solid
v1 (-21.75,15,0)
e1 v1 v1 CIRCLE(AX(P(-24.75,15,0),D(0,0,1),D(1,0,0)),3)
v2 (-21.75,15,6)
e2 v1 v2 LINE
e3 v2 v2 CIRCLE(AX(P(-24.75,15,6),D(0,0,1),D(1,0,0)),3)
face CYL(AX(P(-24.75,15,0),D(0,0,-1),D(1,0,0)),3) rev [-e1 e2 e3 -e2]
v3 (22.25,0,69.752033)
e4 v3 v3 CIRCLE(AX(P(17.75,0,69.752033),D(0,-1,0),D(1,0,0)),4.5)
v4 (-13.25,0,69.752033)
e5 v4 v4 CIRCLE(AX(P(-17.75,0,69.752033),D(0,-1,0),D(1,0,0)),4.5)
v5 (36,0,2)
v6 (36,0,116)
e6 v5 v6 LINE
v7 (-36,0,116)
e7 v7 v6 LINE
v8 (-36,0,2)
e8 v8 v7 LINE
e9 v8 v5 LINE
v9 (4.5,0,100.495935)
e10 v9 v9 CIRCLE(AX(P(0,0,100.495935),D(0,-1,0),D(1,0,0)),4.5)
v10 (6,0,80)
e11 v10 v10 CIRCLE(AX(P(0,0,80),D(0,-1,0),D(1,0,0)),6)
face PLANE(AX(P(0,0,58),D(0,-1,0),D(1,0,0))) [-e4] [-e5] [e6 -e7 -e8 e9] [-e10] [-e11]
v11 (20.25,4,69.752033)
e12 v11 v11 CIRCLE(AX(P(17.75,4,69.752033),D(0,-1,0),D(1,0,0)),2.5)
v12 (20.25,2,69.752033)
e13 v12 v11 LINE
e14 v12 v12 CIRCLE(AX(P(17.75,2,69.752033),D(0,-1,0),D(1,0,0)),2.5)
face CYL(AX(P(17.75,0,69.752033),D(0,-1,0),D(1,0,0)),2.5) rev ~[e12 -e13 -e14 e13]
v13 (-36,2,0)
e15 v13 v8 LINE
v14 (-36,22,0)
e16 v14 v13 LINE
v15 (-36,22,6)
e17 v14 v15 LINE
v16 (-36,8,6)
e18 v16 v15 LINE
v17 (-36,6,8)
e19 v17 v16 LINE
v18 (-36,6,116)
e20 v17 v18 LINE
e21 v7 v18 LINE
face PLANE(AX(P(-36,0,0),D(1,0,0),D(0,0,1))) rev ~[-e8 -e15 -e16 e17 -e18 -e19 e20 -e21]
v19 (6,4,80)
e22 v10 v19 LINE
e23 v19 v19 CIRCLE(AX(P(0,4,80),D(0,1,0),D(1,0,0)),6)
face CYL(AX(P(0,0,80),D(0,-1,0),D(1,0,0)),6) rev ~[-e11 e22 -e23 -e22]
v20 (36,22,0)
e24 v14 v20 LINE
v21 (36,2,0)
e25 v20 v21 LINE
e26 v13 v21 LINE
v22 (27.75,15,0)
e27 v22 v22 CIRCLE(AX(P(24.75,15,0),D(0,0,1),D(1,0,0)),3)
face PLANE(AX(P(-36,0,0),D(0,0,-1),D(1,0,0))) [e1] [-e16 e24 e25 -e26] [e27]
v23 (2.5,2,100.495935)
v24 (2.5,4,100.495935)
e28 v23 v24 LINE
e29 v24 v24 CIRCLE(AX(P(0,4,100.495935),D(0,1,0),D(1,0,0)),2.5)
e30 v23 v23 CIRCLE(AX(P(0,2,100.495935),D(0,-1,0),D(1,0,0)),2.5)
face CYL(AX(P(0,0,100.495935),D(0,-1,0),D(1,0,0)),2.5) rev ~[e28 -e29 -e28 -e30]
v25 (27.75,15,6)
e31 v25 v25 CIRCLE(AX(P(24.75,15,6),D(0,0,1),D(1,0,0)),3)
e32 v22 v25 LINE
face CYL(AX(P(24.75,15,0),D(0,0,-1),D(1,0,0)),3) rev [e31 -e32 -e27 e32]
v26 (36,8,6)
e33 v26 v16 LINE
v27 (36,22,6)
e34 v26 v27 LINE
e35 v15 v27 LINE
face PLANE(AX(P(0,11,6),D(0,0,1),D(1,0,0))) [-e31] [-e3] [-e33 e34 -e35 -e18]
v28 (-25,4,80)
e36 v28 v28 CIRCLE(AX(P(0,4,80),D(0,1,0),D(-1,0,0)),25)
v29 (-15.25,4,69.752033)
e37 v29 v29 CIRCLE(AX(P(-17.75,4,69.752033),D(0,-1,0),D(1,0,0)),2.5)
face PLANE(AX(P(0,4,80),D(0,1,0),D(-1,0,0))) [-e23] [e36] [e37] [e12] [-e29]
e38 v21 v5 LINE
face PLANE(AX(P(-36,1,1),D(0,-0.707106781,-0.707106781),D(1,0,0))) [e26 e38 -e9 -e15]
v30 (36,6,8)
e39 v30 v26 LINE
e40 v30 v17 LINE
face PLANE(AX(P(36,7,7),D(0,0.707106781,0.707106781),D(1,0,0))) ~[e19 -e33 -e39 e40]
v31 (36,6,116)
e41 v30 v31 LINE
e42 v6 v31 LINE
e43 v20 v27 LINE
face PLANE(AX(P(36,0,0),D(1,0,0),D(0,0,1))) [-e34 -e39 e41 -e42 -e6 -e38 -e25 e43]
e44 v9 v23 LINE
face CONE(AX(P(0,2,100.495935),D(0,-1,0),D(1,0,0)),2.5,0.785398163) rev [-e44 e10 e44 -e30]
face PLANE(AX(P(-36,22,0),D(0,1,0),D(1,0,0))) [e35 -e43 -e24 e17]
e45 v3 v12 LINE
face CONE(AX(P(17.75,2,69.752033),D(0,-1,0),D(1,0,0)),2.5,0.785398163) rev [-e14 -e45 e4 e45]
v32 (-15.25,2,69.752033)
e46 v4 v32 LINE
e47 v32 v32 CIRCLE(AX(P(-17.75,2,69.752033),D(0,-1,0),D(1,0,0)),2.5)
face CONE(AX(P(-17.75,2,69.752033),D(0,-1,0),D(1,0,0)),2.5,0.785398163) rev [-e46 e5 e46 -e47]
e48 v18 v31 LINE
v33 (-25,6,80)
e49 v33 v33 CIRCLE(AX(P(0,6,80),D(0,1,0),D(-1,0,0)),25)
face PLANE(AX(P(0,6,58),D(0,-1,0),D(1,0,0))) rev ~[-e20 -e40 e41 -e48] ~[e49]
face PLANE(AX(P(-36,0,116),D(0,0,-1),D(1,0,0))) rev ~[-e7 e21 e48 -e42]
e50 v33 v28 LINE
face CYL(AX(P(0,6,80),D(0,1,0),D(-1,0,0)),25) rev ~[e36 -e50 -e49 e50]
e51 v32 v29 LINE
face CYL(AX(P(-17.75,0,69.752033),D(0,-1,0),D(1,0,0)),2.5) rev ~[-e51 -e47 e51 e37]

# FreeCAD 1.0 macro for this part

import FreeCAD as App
import Part
import Sketcher
from FreeCAD import Vector
Q = App.Units.Quantity


def edges_at(feature, points):
    """Names of the edges that pass closest to the given points."""
    edges = feature.Shape.Edges
    near = lambda p: min(range(len(edges)), key=lambda i: edges[i].distToShape(Part.Vertex(*p))[0])
    return sorted({f"Edge{near(p) + 1}" for p in points})


def add_polygon(sketch, points):
    """Adds a closed chain of lines whose ends are joined by coincident constraints."""
    first, n = sketch.GeometryCount, len(points)
    for a, b in zip(points, points[1:] + points[:1]):
        sketch.addGeometry(Part.LineSegment(App.Vector(*a, 0), App.Vector(*b, 0)), False)
    for i in range(n):
        sketch.addConstraint(Sketcher.Constraint("Coincident", first + i, 2, first + (i + 1) % n, 1))

doc = App.newDocument("Part")
body = doc.addObject("PartDesign::Body", "Body")

sketch1 = body.newObject("Sketcher::SketchObject", "Sketch")
sketch1.AttachmentSupport = (doc.getObject("XZ_Plane"), [""])
sketch1.MapMode = "FlatFace"
add_polygon(sketch1, [(-36, 116), (-36, 0), (36, 0), (36, 116)])
sketch1.addGeometry(Part.Circle(Vector(-17.8, 69.8, 0), Vector(0, 0, 1), 2.5), False)
sketch1.addGeometry(Part.Circle(Vector(17.8, 69.8, 0), Vector(0, 0, 1), 2.5), False)
sketch1.addGeometry(Part.Circle(Vector(0, 80, 0), Vector(0, 0, 1), 6), False)
sketch1.addGeometry(Part.Circle(Vector(0, 100.5, 0), Vector(0, 0, 1), 2.5), False)
sketch1.addConstraint(Sketcher.Constraint("Vertical", 0))
sketch1.addConstraint(Sketcher.Constraint("Horizontal", 1))
sketch1.addConstraint(Sketcher.Constraint("Vertical", 2))
sketch1.addConstraint(Sketcher.Constraint("Horizontal", 3))
sketch1.addConstraint(Sketcher.Constraint("Equal", 4, 5))
sketch1.addConstraint(Sketcher.Constraint("Equal", 5, 7))
sketch1.addConstraint(Sketcher.Constraint("Symmetric", 0, 2, 1, 2, -1, 1))
sketch1.addConstraint(Sketcher.Constraint("Symmetric", 4, 3, 5, 3, -2))
sketch1.addConstraint(Sketcher.Constraint("PointOnObject", 6, 3, -2))
sketch1.addConstraint(Sketcher.Constraint("PointOnObject", 7, 3, -2))
sketch1.addConstraint(Sketcher.Constraint("Diameter", 4, Q("5 mm")))
sketch1.addConstraint(Sketcher.Constraint("Diameter", 6, Q("12 mm")))
sketch1.addConstraint(Sketcher.Constraint("DistanceX", 1, 1, 1, 2, Q("72 mm")))
sketch1.addConstraint(Sketcher.Constraint("DistanceY", 0, 2, 0, 1, Q("116 mm")))
sketch1.addConstraint(Sketcher.Constraint("DistanceY", -1, 1, 6, 3, Q("80 mm")))
sketch1.addConstraint(Sketcher.Constraint("DistanceX", 4, 3, 5, 3, Q("35.5 mm")))
sketch1.addConstraint(Sketcher.Constraint("DistanceY", -1, 1, 4, 3, Q("69.752033 mm")))
sketch1.addConstraint(Sketcher.Constraint("DistanceY", -1, 1, 7, 3, Q("100.495935 mm")))
pad1 = body.newObject("PartDesign::Pad", "Pad")
pad1.Profile = sketch1
pad1.Length = 6
pad1.Reversed = True

sketch2 = body.newObject("Sketcher::SketchObject", "Sketch001")
sketch2.AttachmentSupport = (doc.getObject("XY_Plane"), [""])
sketch2.MapMode = "FlatFace"
add_polygon(sketch2, [(-36, 22), (-36, 0), (36, 0), (36, 22)])
sketch2.addGeometry(Part.Circle(Vector(-24.8, 15, 0), Vector(0, 0, 1), 3), False)
sketch2.addGeometry(Part.Circle(Vector(24.8, 15, 0), Vector(0, 0, 1), 3), False)
sketch2.addConstraint(Sketcher.Constraint("Vertical", 0))
sketch2.addConstraint(Sketcher.Constraint("Horizontal", 1))
sketch2.addConstraint(Sketcher.Constraint("Vertical", 2))
sketch2.addConstraint(Sketcher.Constraint("Horizontal", 3))
sketch2.addConstraint(Sketcher.Constraint("Equal", 4, 5))
sketch2.addConstraint(Sketcher.Constraint("Symmetric", 0, 2, 1, 2, -1, 1))
sketch2.addConstraint(Sketcher.Constraint("Symmetric", 4, 3, 5, 3, -2))
sketch2.addConstraint(Sketcher.Constraint("Diameter", 4, Q("6 mm")))
sketch2.addConstraint(Sketcher.Constraint("DistanceX", 1, 1, 1, 2, Q("72 mm")))
sketch2.addConstraint(Sketcher.Constraint("DistanceY", 0, 2, 0, 1, Q("22 mm")))
sketch2.addConstraint(Sketcher.Constraint("DistanceY", -1, 1, 4, 3, Q("15 mm")))
sketch2.addConstraint(Sketcher.Constraint("DistanceX", 4, 3, 5, 3, Q("49.5 mm")))
pad2 = body.newObject("PartDesign::Pad", "Pad001")
pad2.Profile = sketch2
pad2.Length = 6
doc.recompute()

chamfer = body.newObject("PartDesign::Chamfer", "Chamfer")
chamfer.Base = (pad2, edges_at(pad2, [(0, 6, 6)]))
chamfer.Size = 2
doc.recompute()

chamfer2 = body.newObject("PartDesign::Chamfer", "Chamfer001")
chamfer2.Base = (chamfer, edges_at(chamfer, [(0, 0, 0)]))
chamfer2.Size = 2
doc.recompute()

chamfer3 = body.newObject("PartDesign::Chamfer", "Chamfer002")
chamfer3.Base = (chamfer2, edges_at(chamfer2, [(-2.5, 0, 100.496), (-20.25, 0, 69.752), (15.25, 0, 69.752)]))
chamfer3.Size = 2

sketch3 = body.newObject("Sketcher::SketchObject", "Sketch002")
sketch3.AttachmentSupport = (doc.getObject("XZ_Plane"), [""])
sketch3.MapMode = "FlatFace"
sketch3.AttachmentOffset = App.Placement(Vector(0, 0, -6), App.Rotation())
sketch3.addGeometry(Part.Circle(Vector(0, 80, 0), Vector(0, 0, 1), 25), False)
sketch3.addGeometry(Part.Circle(Vector(17.8, 69.8, 0), Vector(0, 0, 1), 2.5), False)
sketch3.addGeometry(Part.Circle(Vector(-17.8, 69.8, 0), Vector(0, 0, 1), 2.5), False)
sketch3.addGeometry(Part.Circle(Vector(0, 80, 0), Vector(0, 0, 1), 6), False)
sketch3.addGeometry(Part.Circle(Vector(0, 100.5, 0), Vector(0, 0, 1), 2.5), False)
sketch3.addConstraint(Sketcher.Constraint("Coincident", 3, 3, 0, 3))
sketch3.addConstraint(Sketcher.Constraint("Equal", 1, 2))
sketch3.addConstraint(Sketcher.Constraint("Equal", 2, 4))
sketch3.addConstraint(Sketcher.Constraint("Symmetric", 1, 3, 2, 3, -2))
sketch3.addConstraint(Sketcher.Constraint("PointOnObject", 0, 3, -2))
sketch3.addConstraint(Sketcher.Constraint("PointOnObject", 4, 3, -2))
sketch3.addConstraint(Sketcher.Constraint("Diameter", 0, Q("50 mm")))
sketch3.addConstraint(Sketcher.Constraint("Diameter", 1, Q("5 mm")))
sketch3.addConstraint(Sketcher.Constraint("Diameter", 3, Q("12 mm")))
sketch3.addConstraint(Sketcher.Constraint("DistanceY", -1, 1, 0, 3, Q("80 mm")))
sketch3.addConstraint(Sketcher.Constraint("DistanceX", 2, 3, 1, 3, Q("35.5 mm")))
sketch3.addConstraint(Sketcher.Constraint("DistanceY", -1, 1, 1, 3, Q("69.752033 mm")))
sketch3.addConstraint(Sketcher.Constraint("DistanceY", -1, 1, 4, 3, Q("100.495935 mm")))
pocket1 = body.newObject("PartDesign::Pocket", "Pocket")
pocket1.Profile = sketch3
pocket1.Length = 2
pocket1.Reversed = True

doc.recompute()
